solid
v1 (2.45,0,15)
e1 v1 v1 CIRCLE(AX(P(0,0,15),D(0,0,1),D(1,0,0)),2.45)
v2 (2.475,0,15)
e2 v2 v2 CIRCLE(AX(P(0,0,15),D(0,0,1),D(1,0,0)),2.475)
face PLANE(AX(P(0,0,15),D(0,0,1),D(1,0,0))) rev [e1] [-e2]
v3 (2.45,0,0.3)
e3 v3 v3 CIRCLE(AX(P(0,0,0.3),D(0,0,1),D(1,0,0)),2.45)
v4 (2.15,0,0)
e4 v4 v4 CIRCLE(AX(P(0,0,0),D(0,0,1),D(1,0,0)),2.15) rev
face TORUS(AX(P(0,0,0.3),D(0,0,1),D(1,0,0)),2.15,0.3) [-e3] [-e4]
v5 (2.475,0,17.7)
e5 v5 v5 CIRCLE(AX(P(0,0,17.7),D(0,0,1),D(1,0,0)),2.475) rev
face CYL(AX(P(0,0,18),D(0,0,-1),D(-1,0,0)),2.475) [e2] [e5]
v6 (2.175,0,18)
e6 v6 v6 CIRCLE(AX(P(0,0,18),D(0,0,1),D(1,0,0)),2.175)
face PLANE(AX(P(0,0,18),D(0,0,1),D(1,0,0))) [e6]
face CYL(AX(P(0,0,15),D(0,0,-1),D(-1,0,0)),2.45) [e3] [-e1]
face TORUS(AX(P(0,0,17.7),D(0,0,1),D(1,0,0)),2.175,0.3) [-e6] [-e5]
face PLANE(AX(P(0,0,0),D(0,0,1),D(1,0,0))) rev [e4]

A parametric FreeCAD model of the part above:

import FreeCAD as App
import Part
import Sketcher


def edges_at(feature, points):
    """Names of the edges that pass closest to the given points."""
    edges = feature.Shape.Edges
    near = lambda p: min(range(len(edges)), key=lambda i: edges[i].distToShape(Part.Vertex(*p))[0])
    return sorted({f"Edge{near(p) + 1}" for p in points})

doc = App.newDocument("Part")
body = doc.addObject("PartDesign::Body", "Body")

# Sketch on XY plane
sketch1 = body.newObject("Sketcher::SketchObject", "Sketch")
sketch1.AttachmentSupport = (doc.getObject("XY_Plane"), [""])
sketch1.MapMode = "FlatFace"
sketch1.addGeometry(Part.Circle(App.Vector(0, 0, 0), App.Vector(0, 0, 1), 2.5), False)
sketch1.addConstraint([
    Sketcher.Constraint("Coincident", 0, 3, -1, 1),
    Sketcher.Constraint("Diameter", 0, 4.9),
])
pad1 = body.newObject("PartDesign::Pad", "Pad")
pad1.Profile = sketch1
pad1.Length = 15

# Sketch on XY plane
sketch2 = body.newObject("Sketcher::SketchObject", "Sketch001")
sketch2.AttachmentSupport = (doc.getObject("XY_Plane"), [""])
sketch2.MapMode = "FlatFace"
sketch2.AttachmentOffset = App.Placement(App.Vector(0, 0, 15), App.Rotation())
sketch2.addGeometry(Part.Circle(App.Vector(0, 0, 0), App.Vector(0, 0, 1), 2.5), False)
sketch2.addConstraint([
    Sketcher.Constraint("Coincident", 0, 3, -1, 1),
    Sketcher.Constraint("Diameter", 0, 4.95),
])
pad2 = body.newObject("PartDesign::Pad", "Pad001")
pad2.Profile = sketch2
pad2.Length = 3
doc.recompute()

fillet = body.newObject("PartDesign::Fillet", "Fillet")
fillet.Base = (pad2, edges_at(pad2, [(-2.475, 0, 18)]))
fillet.Radius = 0.3
doc.recompute()

fillet2 = body.newObject("PartDesign::Fillet", "Fillet001")
fillet2.Base = (fillet, edges_at(fillet, [(-2.45, 0, 0)]))
fillet2.Radius = 0.3

doc.recompute()
